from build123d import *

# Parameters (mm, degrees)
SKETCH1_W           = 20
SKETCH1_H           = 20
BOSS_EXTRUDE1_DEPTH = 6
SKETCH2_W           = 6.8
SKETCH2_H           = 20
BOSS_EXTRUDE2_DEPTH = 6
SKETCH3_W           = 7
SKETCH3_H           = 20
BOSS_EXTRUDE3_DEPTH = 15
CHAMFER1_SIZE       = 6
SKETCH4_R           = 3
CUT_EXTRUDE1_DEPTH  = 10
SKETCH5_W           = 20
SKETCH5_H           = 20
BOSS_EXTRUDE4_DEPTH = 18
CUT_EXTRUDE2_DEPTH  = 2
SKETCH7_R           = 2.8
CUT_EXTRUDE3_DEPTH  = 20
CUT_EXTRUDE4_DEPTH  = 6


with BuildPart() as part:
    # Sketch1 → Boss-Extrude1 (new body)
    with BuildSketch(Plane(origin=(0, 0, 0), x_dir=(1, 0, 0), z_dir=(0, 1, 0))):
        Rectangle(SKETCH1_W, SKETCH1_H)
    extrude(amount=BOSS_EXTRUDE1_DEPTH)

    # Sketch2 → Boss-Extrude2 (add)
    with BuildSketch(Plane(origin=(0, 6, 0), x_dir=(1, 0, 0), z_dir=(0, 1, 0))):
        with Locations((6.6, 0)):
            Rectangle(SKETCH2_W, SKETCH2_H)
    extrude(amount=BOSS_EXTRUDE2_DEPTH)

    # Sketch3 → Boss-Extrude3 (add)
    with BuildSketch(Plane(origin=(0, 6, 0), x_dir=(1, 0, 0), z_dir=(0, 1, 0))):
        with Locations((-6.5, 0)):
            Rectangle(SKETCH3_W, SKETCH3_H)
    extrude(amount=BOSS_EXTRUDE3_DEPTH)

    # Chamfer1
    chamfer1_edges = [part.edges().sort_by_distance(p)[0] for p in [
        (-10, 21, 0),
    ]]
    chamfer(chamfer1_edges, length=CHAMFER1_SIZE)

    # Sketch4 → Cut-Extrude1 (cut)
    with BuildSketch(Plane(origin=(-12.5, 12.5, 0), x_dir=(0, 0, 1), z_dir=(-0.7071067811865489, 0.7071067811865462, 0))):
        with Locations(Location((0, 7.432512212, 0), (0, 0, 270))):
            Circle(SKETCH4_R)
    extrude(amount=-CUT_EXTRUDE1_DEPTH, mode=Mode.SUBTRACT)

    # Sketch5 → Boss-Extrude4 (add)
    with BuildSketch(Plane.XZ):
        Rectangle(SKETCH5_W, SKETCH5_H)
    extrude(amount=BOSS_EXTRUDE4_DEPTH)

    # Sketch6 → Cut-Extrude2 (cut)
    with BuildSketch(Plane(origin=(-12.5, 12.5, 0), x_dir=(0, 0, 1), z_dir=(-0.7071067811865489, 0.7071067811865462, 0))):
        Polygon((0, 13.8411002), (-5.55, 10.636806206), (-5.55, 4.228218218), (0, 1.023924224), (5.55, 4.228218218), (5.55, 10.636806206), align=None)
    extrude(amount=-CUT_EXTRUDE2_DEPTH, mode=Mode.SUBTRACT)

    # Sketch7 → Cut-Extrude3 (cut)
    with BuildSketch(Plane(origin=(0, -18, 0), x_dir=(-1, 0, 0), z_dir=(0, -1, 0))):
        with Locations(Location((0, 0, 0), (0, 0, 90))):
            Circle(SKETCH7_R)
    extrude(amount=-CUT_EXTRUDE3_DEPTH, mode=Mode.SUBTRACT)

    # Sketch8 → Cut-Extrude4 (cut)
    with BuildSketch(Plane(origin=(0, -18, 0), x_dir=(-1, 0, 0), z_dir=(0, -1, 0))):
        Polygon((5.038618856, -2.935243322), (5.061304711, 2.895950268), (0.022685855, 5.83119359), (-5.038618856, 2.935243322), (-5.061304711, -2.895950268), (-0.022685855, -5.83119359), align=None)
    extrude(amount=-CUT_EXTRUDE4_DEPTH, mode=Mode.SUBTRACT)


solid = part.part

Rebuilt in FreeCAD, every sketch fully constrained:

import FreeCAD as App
import Part
import Sketcher
from FreeCAD import Vector
Q = App.Units.Quantity


def edges_at(feature, points):
    """Names of the edges that pass closest to the given points."""
    edges = feature.Shape.Edges
    near = lambda p: min(range(len(edges)), key=lambda i: edges[i].distToShape(Part.Vertex(*p))[0])
    return sorted({f"Edge{near(p) + 1}" for p in points})


def add_polygon(sketch, points):
    """Adds a closed chain of lines whose ends are joined by coincident constraints."""
    first, n = sketch.GeometryCount, len(points)
    for a, b in zip(points, points[1:] + points[:1]):
        sketch.addGeometry(Part.LineSegment(App.Vector(*a, 0), App.Vector(*b, 0)), False)
    for i in range(n):
        sketch.addConstraint(Sketcher.Constraint("Coincident", first + i, 2, first + (i + 1) % n, 1))

doc = App.newDocument("Part")
body = doc.addObject("PartDesign::Body", "Body")

# Sketch on XZ plane
sketch1 = body.newObject("Sketcher::SketchObject", "Sketch")
sketch1.AttachmentSupport = (doc.getObject("XZ_Plane"), [""])
sketch1.MapMode = "FlatFace"
add_polygon(sketch1, [(-10, -10), (-10, 10), (10, 10), (10, -10)])  # lines 0-3
sketch1.addConstraint(Sketcher.Constraint("Vertical", 0))
sketch1.addConstraint(Sketcher.Constraint("Horizontal", 1))
sketch1.addConstraint(Sketcher.Constraint("Vertical", 2))
sketch1.addConstraint(Sketcher.Constraint("Horizontal", 3))
sketch1.addConstraint(Sketcher.Constraint("Symmetric", 0, 2, 2, 2, -1, 1))
sketch1.addConstraint(Sketcher.Constraint("Equal", 3, 0))
sketch1.addConstraint(Sketcher.Constraint("DistanceX", 1, 1, 1, 2, 20.0))
pad1 = body.newObject("PartDesign::Pad", "Pad")
pad1.Profile = sketch1
pad1.Length = 6
pad1.Reversed = True

# Sketch on XZ plane
sketch2 = body.newObject("Sketcher::SketchObject", "Sketch001")
sketch2.AttachmentSupport = (doc.getObject("XZ_Plane"), [""])
sketch2.MapMode = "FlatFace"
sketch2.AttachmentOffset = App.Placement(Vector(0, 0, -6), App.Rotation())
add_polygon(sketch2, [(3, -10), (3, 10), (10, 10), (10, -10)])  # lines 0-3
sketch2.addConstraint(Sketcher.Constraint("Vertical", 0))
sketch2.addConstraint(Sketcher.Constraint("Horizontal", 1))
sketch2.addConstraint(Sketcher.Constraint("Vertical", 2))
sketch2.addConstraint(Sketcher.Constraint("Horizontal", 3))
sketch2.addConstraint(Sketcher.Constraint("DistanceY", 0, 1, 0, 2, 20.0))
sketch2.addConstraint(Sketcher.Constraint("DistanceX", 1, 1, 1, 2, 6.8))
sketch2.addConstraint(Sketcher.Constraint("DistanceY", -1, 1, 0, 2, 10.0))
sketch2.addConstraint(Sketcher.Constraint("DistanceX", -1, 1, 1, 2, 10.0))
pad2 = body.newObject("PartDesign::Pad", "Pad001")
pad2.Profile = sketch2
pad2.Length = 6
pad2.Reversed = True

# Sketch on XZ plane
sketch3 = body.newObject("Sketcher::SketchObject", "Sketch002")
sketch3.AttachmentSupport = (doc.getObject("XZ_Plane"), [""])
sketch3.MapMode = "FlatFace"
sketch3.AttachmentOffset = App.Placement(Vector(0, 0, -6), App.Rotation())
add_polygon(sketch3, [(-10, -10), (-10, 10), (-3, 10), (-3, -10)])  # lines 0-3
sketch3.addConstraint(Sketcher.Constraint("Vertical", 0))
sketch3.addConstraint(Sketcher.Constraint("Horizontal", 1))
sketch3.addConstraint(Sketcher.Constraint("Vertical", 2))
sketch3.addConstraint(Sketcher.Constraint("Horizontal", 3))
sketch3.addConstraint(Sketcher.Constraint("DistanceX", 1, 1, 1, 2, 7.0))
sketch3.addConstraint(Sketcher.Constraint("DistanceY", 0, 1, 0, 2, 20.0))
sketch3.addConstraint(Sketcher.Constraint("DistanceX", 0, 2, -1, 1, 10.0))
sketch3.addConstraint(Sketcher.Constraint("DistanceY", -1, 1, 0, 2, 10.0))
pad3 = body.newObject("PartDesign::Pad", "Pad002")
pad3.Profile = sketch3
pad3.Length = 15
pad3.Reversed = True
doc.recompute()

chamfer = body.newObject("PartDesign::Chamfer", "Chamfer")
chamfer.Base = (pad3, edges_at(pad3, [(-10, 21, 0)]))
chamfer.Size = 6

# Sketch on an angled plane
sketch4 = body.newObject("Sketcher::SketchObject", "Sketch003")
sketch4.Placement = App.Placement(Vector(-12.5, 12.5, 0), App.Rotation(Vector(0, 0, 1), Vector(0.707106781, 0.707106781, 0), Vector(-0.707106781, 0.707106781, 0), "ZXY"))
sketch4.addGeometry(Part.Circle(Vector(0, 7.4, 0), Vector(0, 0, 1), 3), False)
sketch4.addConstraint(Sketcher.Constraint("PointOnObject", 0, 3, -2))
sketch4.addConstraint(Sketcher.Constraint("Diameter", 0, 6.0))
sketch4.addConstraint(Sketcher.Constraint("DistanceY", -1, 1, 0, 3, 7.432512))
pocket1 = body.newObject("PartDesign::Pocket", "Pocket")
pocket1.Profile = sketch4
pocket1.Length = 10

# Sketch on XZ plane
sketch5 = body.newObject("Sketcher::SketchObject", "Sketch004")
sketch5.AttachmentSupport = (doc.getObject("XZ_Plane"), [""])
sketch5.MapMode = "FlatFace"
add_polygon(sketch5, [(-10, 10), (-10, -10), (10, -10), (10, 10)])  # lines 0-3
sketch5.addConstraint(Sketcher.Constraint("Vertical", 0))
sketch5.addConstraint(Sketcher.Constraint("Horizontal", 1))
sketch5.addConstraint(Sketcher.Constraint("Vertical", 2))
sketch5.addConstraint(Sketcher.Constraint("Horizontal", 3))
sketch5.addConstraint(Sketcher.Constraint("Symmetric", 0, 2, 2, 2, -1, 1))
sketch5.addConstraint(Sketcher.Constraint("Equal", 3, 0))
sketch5.addConstraint(Sketcher.Constraint("DistanceX", 1, 1, 1, 2, 20.0))
pad4 = body.newObject("PartDesign::Pad", "Pad003")
pad4.Profile = sketch5
pad4.Length = 18

# Sketch on an angled plane
sketch6 = body.newObject("Sketcher::SketchObject", "Sketch005")
sketch6.Placement = App.Placement(Vector(-12.5, 12.5, 0), App.Rotation(Vector(0, 0, 1), Vector(0.707106781, 0.707106781, 0), Vector(-0.707106781, 0.707106781, 0), "ZXY"))
add_polygon(sketch6, [(0, 14), (-6, 11), (-6, 4), (0, 1), (6, 4), (6, 11)])  # lines 0-5
sketch6.addConstraint(Sketcher.Constraint("Vertical", 1))
sketch6.addConstraint(Sketcher.Constraint("Vertical", 4))
sketch6.addConstraint(Sketcher.Constraint("Symmetric", 1, 2, 3, 2, -2))
sketch6.addConstraint(Sketcher.Constraint("PointOnObject", 2, 2, -2))
sketch6.addConstraint(Sketcher.Constraint("PointOnObject", 5, 2, -2))
sketch6.addConstraint(Sketcher.Constraint("Parallel", 0, 3))
sketch6.addConstraint(Sketcher.Constraint("Parallel", 2, 5))
sketch6.addConstraint(Sketcher.Constraint("Angle", 0, Q("-150 deg")))
sketch6.addConstraint(Sketcher.Constraint("DistanceX", 1, 2, 3, 2, 11.1))
sketch6.addConstraint(Sketcher.Constraint("DistanceY", -1, 1, 5, 2, 13.8411))
sketch6.addConstraint(Sketcher.Constraint("DistanceY", 1, 2, 1, 1, 6.408588))
pocket2 = body.newObject("PartDesign::Pocket", "Pocket001")
pocket2.Profile = sketch6
pocket2.Length = 2

# Sketch on XZ plane
sketch7 = body.newObject("Sketcher::SketchObject", "Sketch006")
sketch7.AttachmentSupport = (doc.getObject("XZ_Plane"), [""])
sketch7.MapMode = "FlatFace"
sketch7.AttachmentOffset = App.Placement(Vector(0, 0, 18), App.Rotation())
sketch7.addGeometry(Part.Circle(Vector(0, 0, 0), Vector(0, 0, 1), 2.8), False)
sketch7.addConstraint(Sketcher.Constraint("Coincident", 0, 3, -1, 1))
sketch7.addConstraint(Sketcher.Constraint("Diameter", 0, 5.6))
pocket3 = body.newObject("PartDesign::Pocket", "Pocket002")
pocket3.Profile = sketch7
pocket3.Length = 20

# Sketch on XZ plane
sketch8 = body.newObject("Sketcher::SketchObject", "Sketch007")
sketch8.AttachmentSupport = (doc.getObject("XZ_Plane"), [""])
sketch8.MapMode = "FlatFace"
sketch8.AttachmentOffset = App.Placement(Vector(0, 0, 18), App.Rotation())
add_polygon(sketch8, [(-5, 3), (-5, -3), (0, -6), (5, -3), (5, 3), (0, 6)])  # lines 0-5
sketch8.addConstraint(Sketcher.Constraint("Symmetric", 0, 2, 3, 2, -1, 1))
sketch8.addConstraint(Sketcher.Constraint("Symmetric", 1, 2, 4, 2, -1, 1))
sketch8.addConstraint(Sketcher.Constraint("Symmetric", 2, 2, 5, 2, -1, 1))
sketch8.addConstraint(Sketcher.Constraint("Equal", 0, 1))
sketch8.addConstraint(Sketcher.Constraint("Equal", 1, 2))
sketch8.addConstraint(Sketcher.Constraint("DistanceY", 0, 2, 3, 2, 5.791901))
sketch8.addConstraint(Sketcher.Constraint("DistanceX", -1, 1, 2, 2, 5.038619))
sketch8.addConstraint(Sketcher.Constraint("DistanceX", 0, 2, 1, 2, 5.038619))
sketch8.addConstraint(Sketcher.Constraint("DistanceY", 1, 2, 2, 2, 2.89595))
pocket4 = body.newObject("PartDesign::Pocket", "Pocket003")
pocket4.Profile = sketch8
pocket4.Length = 6

doc.recompute()
